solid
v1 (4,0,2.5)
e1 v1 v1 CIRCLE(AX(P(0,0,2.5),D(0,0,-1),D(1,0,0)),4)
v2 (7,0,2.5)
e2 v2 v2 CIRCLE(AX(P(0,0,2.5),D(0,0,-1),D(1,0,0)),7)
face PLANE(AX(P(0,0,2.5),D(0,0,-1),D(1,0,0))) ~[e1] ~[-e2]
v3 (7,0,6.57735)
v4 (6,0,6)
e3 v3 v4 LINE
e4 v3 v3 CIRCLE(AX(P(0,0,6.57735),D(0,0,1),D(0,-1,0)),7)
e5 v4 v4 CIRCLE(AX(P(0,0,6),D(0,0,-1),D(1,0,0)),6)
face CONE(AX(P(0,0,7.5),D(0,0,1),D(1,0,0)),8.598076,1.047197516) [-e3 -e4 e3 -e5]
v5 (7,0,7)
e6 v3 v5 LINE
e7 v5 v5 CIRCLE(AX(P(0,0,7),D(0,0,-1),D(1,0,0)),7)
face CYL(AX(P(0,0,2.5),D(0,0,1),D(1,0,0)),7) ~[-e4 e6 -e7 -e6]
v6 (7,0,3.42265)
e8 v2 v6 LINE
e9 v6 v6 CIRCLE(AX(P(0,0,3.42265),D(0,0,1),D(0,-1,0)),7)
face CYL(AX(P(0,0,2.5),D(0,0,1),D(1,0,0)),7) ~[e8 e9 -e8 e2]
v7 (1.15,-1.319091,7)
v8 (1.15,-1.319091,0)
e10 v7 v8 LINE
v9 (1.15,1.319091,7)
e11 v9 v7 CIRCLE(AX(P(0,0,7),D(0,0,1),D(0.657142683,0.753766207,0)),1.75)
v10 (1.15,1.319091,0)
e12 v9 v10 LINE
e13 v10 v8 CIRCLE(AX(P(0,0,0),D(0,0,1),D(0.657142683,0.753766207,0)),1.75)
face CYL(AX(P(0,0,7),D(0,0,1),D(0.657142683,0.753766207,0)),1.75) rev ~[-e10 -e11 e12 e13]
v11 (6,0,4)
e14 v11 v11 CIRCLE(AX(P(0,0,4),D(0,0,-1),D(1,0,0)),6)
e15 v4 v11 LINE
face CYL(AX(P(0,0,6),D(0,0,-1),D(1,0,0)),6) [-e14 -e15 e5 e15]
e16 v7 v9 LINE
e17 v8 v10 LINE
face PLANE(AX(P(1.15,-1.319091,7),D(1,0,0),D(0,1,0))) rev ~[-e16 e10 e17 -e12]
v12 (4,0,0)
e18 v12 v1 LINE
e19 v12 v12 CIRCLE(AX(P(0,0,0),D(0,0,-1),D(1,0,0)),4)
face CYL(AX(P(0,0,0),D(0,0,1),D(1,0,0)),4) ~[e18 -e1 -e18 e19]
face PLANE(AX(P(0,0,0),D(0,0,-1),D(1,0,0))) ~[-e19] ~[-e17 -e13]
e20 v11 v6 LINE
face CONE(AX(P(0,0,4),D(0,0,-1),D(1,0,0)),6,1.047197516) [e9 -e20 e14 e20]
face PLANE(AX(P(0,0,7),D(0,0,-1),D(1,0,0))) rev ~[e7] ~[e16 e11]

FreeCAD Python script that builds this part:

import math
import FreeCAD as App
import Part
import Sketcher

V = App.Vector
Q = App.Units.Quantity


def add_polygon(sketch, points):
    """Adds a closed chain of lines whose ends are joined by coincident constraints."""
    first, n = sketch.GeometryCount, len(points)
    for a, b in zip(points, points[1:] + points[:1]):
        sketch.addGeometry(Part.LineSegment(App.Vector(*a, 0), App.Vector(*b, 0)), False)
    for i in range(n):
        sketch.addConstraint(Sketcher.Constraint("Coincident", first + i, 2, first + (i + 1) % n, 1))

doc = App.newDocument("Part")
body = doc.addObject("PartDesign::Body", "Body")

sketch1 = body.newObject("Sketcher::SketchObject", "Sketch")
sketch1.AttachmentSupport = (doc.getObject("XZ_Plane"), [""])
sketch1.MapMode = "FlatFace"
add_polygon(sketch1, [(0, 7), (0, 0), (4, 0), (4, 2.5), (7, 2.5), (7, 7)])
sketch1.addConstraint(Sketcher.Constraint("Vertical", 0))
sketch1.addConstraint(Sketcher.Constraint("Horizontal", 1))
sketch1.addConstraint(Sketcher.Constraint("Vertical", 2))
sketch1.addConstraint(Sketcher.Constraint("Horizontal", 3))
sketch1.addConstraint(Sketcher.Constraint("Vertical", 4))
sketch1.addConstraint(Sketcher.Constraint("Horizontal", 5))
sketch1.addConstraint(Sketcher.Constraint("Coincident", 0, 2, -1, 1))
sketch1.addConstraint(Sketcher.Constraint("Equal", 5, 0))
sketch1.addConstraint(Sketcher.Constraint("DistanceX", 1, 1, 1, 2, Q("4 mm")))
sketch1.addConstraint(Sketcher.Constraint("DistanceX", 3, 1, 3, 2, Q("3 mm")))
sketch1.addConstraint(Sketcher.Constraint("DistanceY", 2, 1, 2, 2, Q("2.5 mm")))
revolution = body.newObject("PartDesign::Revolution", "Revolution")
revolution.Profile = sketch1
revolution.ReferenceAxis = (sketch1, ["V_Axis"])
revolution.Angle = 360

sketch2 = body.newObject("Sketcher::SketchObject", "Sketch001")
sketch2.AttachmentSupport = (doc.getObject("XY_Plane"), [""])
sketch2.MapMode = "FlatFace"
sketch2.AttachmentOffset = App.Placement(V(0, 0, 7), App.Rotation())
sketch2.addGeometry(Part.LineSegment(V(1.1, -1.3, 0), V(1.1, 1.3, 0)), False)
sketch2.addGeometry(Part.ArcOfCircle(Part.Circle(V(0, 0, 0), V(0, 0, 1), 1.8), math.radians(49), math.radians(311)), False)
sketch2.addConstraint(Sketcher.Constraint("Coincident", 0, 1, 1, 2))
sketch2.addConstraint(Sketcher.Constraint("Coincident", 1, 1, 0, 2))
sketch2.addConstraint(Sketcher.Constraint("Vertical", 0))
sketch2.addConstraint(Sketcher.Constraint("Coincident", 1, 3, -1, 1))
sketch2.addConstraint(Sketcher.Constraint("Radius", 1, Q("1.75 mm")))
sketch2.addConstraint(Sketcher.Constraint("DistanceX", -1, 1, 0, 1, Q("1.15 mm")))
pocket1 = body.newObject("PartDesign::Pocket", "Pocket")
pocket1.Profile = sketch2
pocket1.Type = "ThroughAll"

sketch3 = body.newObject("Sketcher::SketchObject", "Sketch002")
sketch3.AttachmentSupport = (doc.getObject("XZ_Plane"), [""])
sketch3.MapMode = "FlatFace"
add_polygon(sketch3, [(6, 4), (8.6, 2.5), (8.6, 7.5), (6, 6)])
sketch3.addConstraint(Sketcher.Constraint("Vertical", 1))
sketch3.addConstraint(Sketcher.Constraint("Vertical", 3))
sketch3.addConstraint(Sketcher.Constraint("Equal", 0, 2))
sketch3.addConstraint(Sketcher.Constraint("DistanceY", 1, 1, 1, 2, Q("5 mm")))
sketch3.addConstraint(Sketcher.Constraint("DistanceY", 3, 2, 3, 1, Q("2 mm")))
sketch3.addConstraint(Sketcher.Constraint("Angle", 0, Q("-30.000002 deg")))
sketch3.addConstraint(Sketcher.Constraint("DistanceX", -1, 1, 2, 2, Q("6 mm")))
sketch3.addConstraint(Sketcher.Constraint("DistanceY", -1, 1, 2, 2, Q("6 mm")))
groove = body.newObject("PartDesign::Groove", "Groove")
groove.Profile = sketch3
groove.ReferenceAxis = (sketch3, ["V_Axis"])
groove.Angle = 360

doc.recompute()
